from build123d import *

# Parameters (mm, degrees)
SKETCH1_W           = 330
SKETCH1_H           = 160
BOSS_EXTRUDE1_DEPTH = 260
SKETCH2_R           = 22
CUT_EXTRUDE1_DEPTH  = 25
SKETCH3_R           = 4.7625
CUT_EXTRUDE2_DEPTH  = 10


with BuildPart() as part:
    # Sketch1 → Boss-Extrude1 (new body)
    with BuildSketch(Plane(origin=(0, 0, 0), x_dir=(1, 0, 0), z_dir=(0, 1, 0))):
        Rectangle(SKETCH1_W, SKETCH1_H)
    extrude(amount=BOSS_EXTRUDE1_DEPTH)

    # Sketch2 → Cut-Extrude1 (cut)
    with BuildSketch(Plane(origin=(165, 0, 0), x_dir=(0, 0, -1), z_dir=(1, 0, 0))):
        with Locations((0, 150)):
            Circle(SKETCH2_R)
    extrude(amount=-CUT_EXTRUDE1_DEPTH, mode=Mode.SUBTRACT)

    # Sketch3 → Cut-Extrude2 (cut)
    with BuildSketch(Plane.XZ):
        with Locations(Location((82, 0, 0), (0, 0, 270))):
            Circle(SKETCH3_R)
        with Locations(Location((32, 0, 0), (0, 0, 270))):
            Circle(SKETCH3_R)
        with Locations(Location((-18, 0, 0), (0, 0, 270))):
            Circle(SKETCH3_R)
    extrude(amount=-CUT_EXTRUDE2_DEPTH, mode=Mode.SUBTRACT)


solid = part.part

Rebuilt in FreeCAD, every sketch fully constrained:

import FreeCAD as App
import Part
import Sketcher
from FreeCAD import Vector
Q = App.Units.Quantity

doc = App.newDocument("Part")
body = doc.addObject("PartDesign::Body", "Body")

sketch1 = body.newObject("Sketcher::SketchObject", "Sketch")
sketch1.AttachmentSupport = (doc.getObject("XZ_Plane"), [""])
sketch1.MapMode = "FlatFace"
sketch1.addGeometry([
    Part.LineSegment(Vector(-165, -80, 0), Vector(-165, 80, 0)),
    Part.LineSegment(Vector(-165, 80, 0), Vector(165, 80, 0)),
    Part.LineSegment(Vector(165, 80, 0), Vector(165, -80, 0)),
    Part.LineSegment(Vector(165, -80, 0), Vector(-165, -80, 0)),
], False)
sketch1.addConstraint([
    Sketcher.Constraint("Coincident", 0, 2, 1, 1),
    Sketcher.Constraint("Coincident", 1, 2, 2, 1),
    Sketcher.Constraint("Coincident", 2, 2, 3, 1),
    Sketcher.Constraint("Coincident", 3, 2, 0, 1),
    Sketcher.Constraint("Vertical", 0),
    Sketcher.Constraint("Horizontal", 1),
    Sketcher.Constraint("Vertical", 2),
    Sketcher.Constraint("Horizontal", 3),
    Sketcher.Constraint("Symmetric", 0, 2, 2, 2, -1, 1),
    Sketcher.Constraint("DistanceX", 1, 1, 1, 2, Q("330 mm")),
    Sketcher.Constraint("DistanceY", 0, 1, 0, 2, Q("160 mm")),
])
pad1 = body.newObject("PartDesign::Pad", "Pad")
pad1.Profile = sketch1
pad1.Length = 260
pad1.Reversed = True

sketch2 = body.newObject("Sketcher::SketchObject", "Sketch001")
sketch2.AttachmentSupport = (doc.getObject("YZ_Plane"), [""])
sketch2.MapMode = "FlatFace"
sketch2.AttachmentOffset = App.Placement(Vector(0, 0, 165), App.Rotation())
sketch2.addGeometry(Part.Circle(Vector(150, 0, 0), Vector(0, 0, 1), 22), False)
sketch2.addConstraint([
    Sketcher.Constraint("PointOnObject", 0, 3, -1),
    Sketcher.Constraint("Diameter", 0, Q("44 mm")),
    Sketcher.Constraint("DistanceX", -1, 1, 0, 3, Q("150 mm")),
])
pocket1 = body.newObject("PartDesign::Pocket", "Pocket")
pocket1.Profile = sketch2
pocket1.Length = 25

sketch3 = body.newObject("Sketcher::SketchObject", "Sketch002")
sketch3.AttachmentSupport = (doc.getObject("XZ_Plane"), [""])
sketch3.MapMode = "FlatFace"
sketch3.addGeometry([
    Part.Circle(Vector(82, 0, 0), Vector(0, 0, 1), 4.8),
    Part.Circle(Vector(32, 0, 0), Vector(0, 0, 1), 4.8),
    Part.Circle(Vector(-18, 0, 0), Vector(0, 0, 1), 4.8),
], False)
sketch3.addConstraint([
    Sketcher.Constraint("Equal", 0, 1),
    Sketcher.Constraint("Equal", 1, 2),
    Sketcher.Constraint("PointOnObject", 0, 3, -1),
    Sketcher.Constraint("PointOnObject", 1, 3, -1),
    Sketcher.Constraint("PointOnObject", 2, 3, -1),
    Sketcher.Constraint("Diameter", 0, Q("9.525 mm")),
    Sketcher.Constraint("DistanceX", -1, 1, 0, 3, Q("82 mm")),
    Sketcher.Constraint("DistanceX", -1, 1, 1, 3, Q("32 mm")),
    Sketcher.Constraint("DistanceX", 2, 3, -1, 1, Q("18 mm")),
])
pocket2 = body.newObject("PartDesign::Pocket", "Pocket001")
pocket2.Profile = sketch3
pocket2.Length = 10

doc.recompute()
